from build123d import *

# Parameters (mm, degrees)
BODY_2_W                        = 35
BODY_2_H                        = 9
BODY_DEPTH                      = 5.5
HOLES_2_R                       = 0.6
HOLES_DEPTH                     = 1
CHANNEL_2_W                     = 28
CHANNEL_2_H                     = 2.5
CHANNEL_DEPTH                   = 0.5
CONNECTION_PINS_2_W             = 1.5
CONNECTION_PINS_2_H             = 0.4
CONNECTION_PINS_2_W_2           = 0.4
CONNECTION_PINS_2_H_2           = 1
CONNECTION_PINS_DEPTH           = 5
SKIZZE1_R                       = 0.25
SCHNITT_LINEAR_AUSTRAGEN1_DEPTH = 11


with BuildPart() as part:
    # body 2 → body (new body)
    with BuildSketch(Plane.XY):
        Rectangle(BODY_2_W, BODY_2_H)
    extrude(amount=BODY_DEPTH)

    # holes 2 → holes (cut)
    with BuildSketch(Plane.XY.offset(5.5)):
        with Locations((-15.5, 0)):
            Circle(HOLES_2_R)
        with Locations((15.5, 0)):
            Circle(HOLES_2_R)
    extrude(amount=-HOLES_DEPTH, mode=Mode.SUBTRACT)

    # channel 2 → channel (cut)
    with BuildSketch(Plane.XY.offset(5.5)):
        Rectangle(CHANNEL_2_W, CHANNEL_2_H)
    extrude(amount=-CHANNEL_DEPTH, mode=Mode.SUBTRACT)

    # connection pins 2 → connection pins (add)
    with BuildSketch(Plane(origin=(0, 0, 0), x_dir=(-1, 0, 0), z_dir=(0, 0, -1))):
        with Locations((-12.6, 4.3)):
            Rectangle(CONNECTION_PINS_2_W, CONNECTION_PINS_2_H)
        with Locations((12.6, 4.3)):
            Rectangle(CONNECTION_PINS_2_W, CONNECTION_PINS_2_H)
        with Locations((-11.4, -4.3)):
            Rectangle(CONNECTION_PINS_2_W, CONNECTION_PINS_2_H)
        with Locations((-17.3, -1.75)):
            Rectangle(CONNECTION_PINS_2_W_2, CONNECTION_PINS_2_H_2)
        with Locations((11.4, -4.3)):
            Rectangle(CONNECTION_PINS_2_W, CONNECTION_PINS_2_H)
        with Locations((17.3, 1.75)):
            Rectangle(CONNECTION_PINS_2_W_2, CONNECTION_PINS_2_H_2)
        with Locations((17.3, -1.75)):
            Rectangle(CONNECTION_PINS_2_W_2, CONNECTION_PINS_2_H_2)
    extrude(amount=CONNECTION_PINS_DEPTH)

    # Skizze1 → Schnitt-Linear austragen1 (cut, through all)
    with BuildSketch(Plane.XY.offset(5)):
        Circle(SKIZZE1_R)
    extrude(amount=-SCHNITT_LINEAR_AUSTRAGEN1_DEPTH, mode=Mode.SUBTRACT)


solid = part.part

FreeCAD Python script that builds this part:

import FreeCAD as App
import Part
import Sketcher
Q = App.Units.Quantity

doc = App.newDocument("Part")
body = doc.addObject("PartDesign::Body", "Body")

sketch1 = body.newObject("Sketcher::SketchObject", "Sketch")
sketch1.AttachmentSupport = (doc.getObject("XY_Plane"), [""])
sketch1.MapMode = "FlatFace"
sketch1.addGeometry([
    Part.LineSegment(App.Vector(-18, 4, 0), App.Vector(-18, -4, 0)),
    Part.LineSegment(App.Vector(-18, -4, 0), App.Vector(18, -4, 0)),
    Part.LineSegment(App.Vector(18, -4, 0), App.Vector(18, 4, 0)),
    Part.LineSegment(App.Vector(18, 4, 0), App.Vector(-18, 4, 0)),
], False)
sketch1.addConstraint([
    Sketcher.Constraint("Coincident", 0, 2, 1, 1),
    Sketcher.Constraint("Coincident", 1, 2, 2, 1),
    Sketcher.Constraint("Coincident", 2, 2, 3, 1),
    Sketcher.Constraint("Coincident", 3, 2, 0, 1),
    Sketcher.Constraint("Vertical", 0),
    Sketcher.Constraint("Horizontal", 1),
    Sketcher.Constraint("Vertical", 2),
    Sketcher.Constraint("Horizontal", 3),
    Sketcher.Constraint("Symmetric", 0, 2, 2, 2, -1, 1),
    Sketcher.Constraint("DistanceX", 1, 1, 1, 2, Q("35 mm")),
    Sketcher.Constraint("DistanceY", 0, 2, 0, 1, Q("9 mm")),
])
pad1 = body.newObject("PartDesign::Pad", "Pad")
pad1.Profile = sketch1
pad1.Length = 5.5

sketch2 = body.newObject("Sketcher::SketchObject", "Sketch001")
sketch2.AttachmentSupport = (doc.getObject("XY_Plane"), [""])
sketch2.MapMode = "FlatFace"
sketch2.AttachmentOffset = App.Placement(App.Vector(0, 0, 5.5), App.Rotation())
sketch2.addGeometry([
    Part.Circle(App.Vector(-15.5, 0, 0), App.Vector(0, 0, 1), 0.6),
    Part.Circle(App.Vector(15.5, 0, 0), App.Vector(0, 0, 1), 0.6),
], False)
sketch2.addConstraint([
    Sketcher.Constraint("Equal", 0, 1),
    Sketcher.Constraint("Symmetric", 0, 3, 1, 3, -1, 1),
    Sketcher.Constraint("PointOnObject", 0, 3, -1),
    Sketcher.Constraint("Diameter", 0, Q("1.2 mm")),
    Sketcher.Constraint("DistanceX", 0, 3, 1, 3, Q("31 mm")),
])
pocket1 = body.newObject("PartDesign::Pocket", "Pocket")
pocket1.Profile = sketch2
pocket1.Length = 1

sketch3 = body.newObject("Sketcher::SketchObject", "Sketch002")
sketch3.AttachmentSupport = (doc.getObject("XY_Plane"), [""])
sketch3.MapMode = "FlatFace"
sketch3.AttachmentOffset = App.Placement(App.Vector(0, 0, 5.5), App.Rotation())
sketch3.addGeometry([
    Part.LineSegment(App.Vector(-14, 1.2, 0), App.Vector(-14, -1.2, 0)),
    Part.LineSegment(App.Vector(-14, -1.2, 0), App.Vector(14, -1.2, 0)),
    Part.LineSegment(App.Vector(14, -1.2, 0), App.Vector(14, 1.2, 0)),
    Part.LineSegment(App.Vector(14, 1.2, 0), App.Vector(-14, 1.2, 0)),
], False)
sketch3.addConstraint([
    Sketcher.Constraint("Coincident", 0, 2, 1, 1),
    Sketcher.Constraint("Coincident", 1, 2, 2, 1),
    Sketcher.Constraint("Coincident", 2, 2, 3, 1),
    Sketcher.Constraint("Coincident", 3, 2, 0, 1),
    Sketcher.Constraint("Vertical", 0),
    Sketcher.Constraint("Horizontal", 1),
    Sketcher.Constraint("Vertical", 2),
    Sketcher.Constraint("Horizontal", 3),
    Sketcher.Constraint("Symmetric", 0, 2, 2, 2, -1, 1),
    Sketcher.Constraint("DistanceX", 1, 1, 1, 2, Q("28 mm")),
    Sketcher.Constraint("DistanceY", 0, 2, 0, 1, Q("2.5 mm")),
])
pocket2 = body.newObject("PartDesign::Pocket", "Pocket001")
pocket2.Profile = sketch3
pocket2.Length = 0.5

sketch4 = body.newObject("Sketcher::SketchObject", "Sketch003")
sketch4.AttachmentSupport = (doc.getObject("XY_Plane"), [""])
sketch4.MapMode = "FlatFace"
sketch4.addGeometry([
    Part.LineSegment(App.Vector(13.35, 4.5, 0), App.Vector(13.35, 4.1, 0)),
    Part.LineSegment(App.Vector(13.35, 4.1, 0), App.Vector(11.85, 4.1, 0)),
    Part.LineSegment(App.Vector(11.85, 4.1, 0), App.Vector(11.85, 4.5, 0)),
    Part.LineSegment(App.Vector(11.85, 4.5, 0), App.Vector(13.35, 4.5, 0)),
    Part.LineSegment(App.Vector(-11.85, 4.5, 0), App.Vector(-11.85, 4.1, 0)),
    Part.LineSegment(App.Vector(-11.85, 4.1, 0), App.Vector(-13.35, 4.1, 0)),
    Part.LineSegment(App.Vector(-13.35, 4.1, 0), App.Vector(-13.35, 4.5, 0)),
    Part.LineSegment(App.Vector(-13.35, 4.5, 0), App.Vector(-11.85, 4.5, 0)),
    Part.LineSegment(App.Vector(12.15, -4.1, 0), App.Vector(12.15, -4.5, 0)),
    Part.LineSegment(App.Vector(12.15, -4.5, 0), App.Vector(10.65, -4.5, 0)),
    Part.LineSegment(App.Vector(10.65, -4.5, 0), App.Vector(10.65, -4.1, 0)),
    Part.LineSegment(App.Vector(10.65, -4.1, 0), App.Vector(12.15, -4.1, 0)),
    Part.LineSegment(App.Vector(17.5, -1.25, 0), App.Vector(17.5, -2.25, 0)),
    Part.LineSegment(App.Vector(17.5, -2.25, 0), App.Vector(17.1, -2.25, 0)),
    Part.LineSegment(App.Vector(17.1, -2.25, 0), App.Vector(17.1, -1.25, 0)),
    Part.LineSegment(App.Vector(17.1, -1.25, 0), App.Vector(17.5, -1.25, 0)),
    Part.LineSegment(App.Vector(-10.65, -4.1, 0), App.Vector(-10.65, -4.5, 0)),
    Part.LineSegment(App.Vector(-10.65, -4.5, 0), App.Vector(-12.15, -4.5, 0)),
    Part.LineSegment(App.Vector(-12.15, -4.5, 0), App.Vector(-12.15, -4.1, 0)),
    Part.LineSegment(App.Vector(-12.15, -4.1, 0), App.Vector(-10.65, -4.1, 0)),
    Part.LineSegment(App.Vector(-17.1, 2.25, 0), App.Vector(-17.1, 1.25, 0)),
    Part.LineSegment(App.Vector(-17.1, 1.25, 0), App.Vector(-17.5, 1.25, 0)),
    Part.LineSegment(App.Vector(-17.5, 1.25, 0), App.Vector(-17.5, 2.25, 0)),
    Part.LineSegment(App.Vector(-17.5, 2.25, 0), App.Vector(-17.1, 2.25, 0)),
    Part.LineSegment(App.Vector(-17.1, -1.25, 0), App.Vector(-17.1, -2.25, 0)),
    Part.LineSegment(App.Vector(-17.1, -2.25, 0), App.Vector(-17.5, -2.25, 0)),
    Part.LineSegment(App.Vector(-17.5, -2.25, 0), App.Vector(-17.5, -1.25, 0)),
    Part.LineSegment(App.Vector(-17.5, -1.25, 0), App.Vector(-17.1, -1.25, 0)),
], False)
sketch4.addConstraint([
    Sketcher.Constraint("Coincident", 0, 2, 1, 1),
    Sketcher.Constraint("Coincident", 1, 2, 2, 1),
    Sketcher.Constraint("Coincident", 2, 2, 3, 1),
    Sketcher.Constraint("Coincident", 3, 2, 0, 1),
    Sketcher.Constraint("Coincident", 4, 2, 5, 1),
    Sketcher.Constraint("Coincident", 5, 2, 6, 1),
    Sketcher.Constraint("Coincident", 6, 2, 7, 1),
    Sketcher.Constraint("Coincident", 7, 2, 4, 1),
    Sketcher.Constraint("Coincident", 8, 2, 9, 1),
    Sketcher.Constraint("Coincident", 9, 2, 10, 1),
    Sketcher.Constraint("Coincident", 10, 2, 11, 1),
    Sketcher.Constraint("Coincident", 11, 2, 8, 1),
    Sketcher.Constraint("Coincident", 12, 2, 13, 1),
    Sketcher.Constraint("Coincident", 13, 2, 14, 1),
    Sketcher.Constraint("Coincident", 14, 2, 15, 1),
    Sketcher.Constraint("Coincident", 15, 2, 12, 1),
    Sketcher.Constraint("Coincident", 16, 2, 17, 1),
    Sketcher.Constraint("Coincident", 17, 2, 18, 1),
    Sketcher.Constraint("Coincident", 18, 2, 19, 1),
    Sketcher.Constraint("Coincident", 19, 2, 16, 1),
    Sketcher.Constraint("Coincident", 20, 2, 21, 1),
    Sketcher.Constraint("Coincident", 21, 2, 22, 1),
    Sketcher.Constraint("Coincident", 22, 2, 23, 1),
    Sketcher.Constraint("Coincident", 23, 2, 20, 1),
    Sketcher.Constraint("Coincident", 24, 2, 25, 1),
    Sketcher.Constraint("Coincident", 25, 2, 26, 1),
    Sketcher.Constraint("Coincident", 26, 2, 27, 1),
    Sketcher.Constraint("Coincident", 27, 2, 24, 1),
    Sketcher.Constraint("Vertical", 0),
    Sketcher.Constraint("Horizontal", 1),
    Sketcher.Constraint("Vertical", 2),
    Sketcher.Constraint("Horizontal", 3),
    Sketcher.Constraint("Vertical", 4),
    Sketcher.Constraint("Horizontal", 5),
    Sketcher.Constraint("Vertical", 6),
    Sketcher.Constraint("Horizontal", 7),
    Sketcher.Constraint("Vertical", 8),
    Sketcher.Constraint("Horizontal", 9),
    Sketcher.Constraint("Vertical", 10),
    Sketcher.Constraint("Horizontal", 11),
    Sketcher.Constraint("Vertical", 12),
    Sketcher.Constraint("Horizontal", 13),
    Sketcher.Constraint("Vertical", 14),
    Sketcher.Constraint("Horizontal", 15),
    Sketcher.Constraint("Vertical", 16),
    Sketcher.Constraint("Horizontal", 17),
    Sketcher.Constraint("Vertical", 18),
    Sketcher.Constraint("Horizontal", 19),
    Sketcher.Constraint("Vertical", 20),
    Sketcher.Constraint("Horizontal", 21),
    Sketcher.Constraint("Vertical", 22),
    Sketcher.Constraint("Horizontal", 23),
    Sketcher.Constraint("Vertical", 24),
    Sketcher.Constraint("Horizontal", 25),
    Sketcher.Constraint("Vertical", 26),
    Sketcher.Constraint("Horizontal", 27),
    Sketcher.Constraint("Symmetric", 14, 2, 20, 2, -1, 1),
    Sketcher.Constraint("Symmetric", 12, 2, 22, 2, -1, 1),
    Sketcher.Constraint("Symmetric", 1, 2, 4, 2, -2),
    Sketcher.Constraint("Symmetric", 3, 2, 6, 2, -2),
    Sketcher.Constraint("Symmetric", 9, 2, 16, 2, -2),
    Sketcher.Constraint("Symmetric", 11, 2, 18, 2, -2),
    Sketcher.Constraint("Symmetric", 13, 2, 24, 2, -2),
    Sketcher.Constraint("Symmetric", 15, 2, 26, 2, -2),
    Sketcher.Constraint("Equal", 7, 9),
    Sketcher.Constraint("Equal", 27, 0),
    Sketcher.Constraint("Equal", 6, 8),
    Sketcher.Constraint("DistanceY", 12, 2, 12, 1, Q("1 mm")),
    Sketcher.Constraint("DistanceX", 1, 2, 1, 1, Q("1.5 mm")),
    Sketcher.Constraint("DistanceX", 13, 2, 13, 1, Q("0.4 mm")),
    Sketcher.Constraint("DistanceY", 8, 2, 2, 2, Q("9 mm")),
    Sketcher.Constraint("DistanceX", 4, 2, 8, 2, Q("24 mm")),
    Sketcher.Constraint("DistanceY", -1, 1, 0, 2, Q("4.1 mm")),
    Sketcher.Constraint("DistanceX", -1, 1, 12, 2, Q("17.5 mm")),
    Sketcher.Constraint("DistanceX", 4, 2, 1, 2, Q("23.7 mm")),
    Sketcher.Constraint("DistanceY", 24, 2, 20, 2, Q("3.5 mm")),
])
pad2 = body.newObject("PartDesign::Pad", "Pad001")
pad2.Profile = sketch4
pad2.Length = 5
pad2.Reversed = True

sketch5 = body.newObject("Sketcher::SketchObject", "Sketch004")
sketch5.AttachmentSupport = (doc.getObject("XY_Plane"), [""])
sketch5.MapMode = "FlatFace"
sketch5.AttachmentOffset = App.Placement(App.Vector(0, 0, 5), App.Rotation())
sketch5.addGeometry(Part.Circle(App.Vector(0, 0, 0), App.Vector(0, 0, 1), 0.25), False)
sketch5.addConstraint([
    Sketcher.Constraint("Coincident", 0, 3, -1, 1),
    Sketcher.Constraint("Diameter", 0, Q("0.5 mm")),
])
pocket3 = body.newObject("PartDesign::Pocket", "Pocket002")
pocket3.Profile = sketch5
pocket3.Type = "ThroughAll"

doc.recompute()
